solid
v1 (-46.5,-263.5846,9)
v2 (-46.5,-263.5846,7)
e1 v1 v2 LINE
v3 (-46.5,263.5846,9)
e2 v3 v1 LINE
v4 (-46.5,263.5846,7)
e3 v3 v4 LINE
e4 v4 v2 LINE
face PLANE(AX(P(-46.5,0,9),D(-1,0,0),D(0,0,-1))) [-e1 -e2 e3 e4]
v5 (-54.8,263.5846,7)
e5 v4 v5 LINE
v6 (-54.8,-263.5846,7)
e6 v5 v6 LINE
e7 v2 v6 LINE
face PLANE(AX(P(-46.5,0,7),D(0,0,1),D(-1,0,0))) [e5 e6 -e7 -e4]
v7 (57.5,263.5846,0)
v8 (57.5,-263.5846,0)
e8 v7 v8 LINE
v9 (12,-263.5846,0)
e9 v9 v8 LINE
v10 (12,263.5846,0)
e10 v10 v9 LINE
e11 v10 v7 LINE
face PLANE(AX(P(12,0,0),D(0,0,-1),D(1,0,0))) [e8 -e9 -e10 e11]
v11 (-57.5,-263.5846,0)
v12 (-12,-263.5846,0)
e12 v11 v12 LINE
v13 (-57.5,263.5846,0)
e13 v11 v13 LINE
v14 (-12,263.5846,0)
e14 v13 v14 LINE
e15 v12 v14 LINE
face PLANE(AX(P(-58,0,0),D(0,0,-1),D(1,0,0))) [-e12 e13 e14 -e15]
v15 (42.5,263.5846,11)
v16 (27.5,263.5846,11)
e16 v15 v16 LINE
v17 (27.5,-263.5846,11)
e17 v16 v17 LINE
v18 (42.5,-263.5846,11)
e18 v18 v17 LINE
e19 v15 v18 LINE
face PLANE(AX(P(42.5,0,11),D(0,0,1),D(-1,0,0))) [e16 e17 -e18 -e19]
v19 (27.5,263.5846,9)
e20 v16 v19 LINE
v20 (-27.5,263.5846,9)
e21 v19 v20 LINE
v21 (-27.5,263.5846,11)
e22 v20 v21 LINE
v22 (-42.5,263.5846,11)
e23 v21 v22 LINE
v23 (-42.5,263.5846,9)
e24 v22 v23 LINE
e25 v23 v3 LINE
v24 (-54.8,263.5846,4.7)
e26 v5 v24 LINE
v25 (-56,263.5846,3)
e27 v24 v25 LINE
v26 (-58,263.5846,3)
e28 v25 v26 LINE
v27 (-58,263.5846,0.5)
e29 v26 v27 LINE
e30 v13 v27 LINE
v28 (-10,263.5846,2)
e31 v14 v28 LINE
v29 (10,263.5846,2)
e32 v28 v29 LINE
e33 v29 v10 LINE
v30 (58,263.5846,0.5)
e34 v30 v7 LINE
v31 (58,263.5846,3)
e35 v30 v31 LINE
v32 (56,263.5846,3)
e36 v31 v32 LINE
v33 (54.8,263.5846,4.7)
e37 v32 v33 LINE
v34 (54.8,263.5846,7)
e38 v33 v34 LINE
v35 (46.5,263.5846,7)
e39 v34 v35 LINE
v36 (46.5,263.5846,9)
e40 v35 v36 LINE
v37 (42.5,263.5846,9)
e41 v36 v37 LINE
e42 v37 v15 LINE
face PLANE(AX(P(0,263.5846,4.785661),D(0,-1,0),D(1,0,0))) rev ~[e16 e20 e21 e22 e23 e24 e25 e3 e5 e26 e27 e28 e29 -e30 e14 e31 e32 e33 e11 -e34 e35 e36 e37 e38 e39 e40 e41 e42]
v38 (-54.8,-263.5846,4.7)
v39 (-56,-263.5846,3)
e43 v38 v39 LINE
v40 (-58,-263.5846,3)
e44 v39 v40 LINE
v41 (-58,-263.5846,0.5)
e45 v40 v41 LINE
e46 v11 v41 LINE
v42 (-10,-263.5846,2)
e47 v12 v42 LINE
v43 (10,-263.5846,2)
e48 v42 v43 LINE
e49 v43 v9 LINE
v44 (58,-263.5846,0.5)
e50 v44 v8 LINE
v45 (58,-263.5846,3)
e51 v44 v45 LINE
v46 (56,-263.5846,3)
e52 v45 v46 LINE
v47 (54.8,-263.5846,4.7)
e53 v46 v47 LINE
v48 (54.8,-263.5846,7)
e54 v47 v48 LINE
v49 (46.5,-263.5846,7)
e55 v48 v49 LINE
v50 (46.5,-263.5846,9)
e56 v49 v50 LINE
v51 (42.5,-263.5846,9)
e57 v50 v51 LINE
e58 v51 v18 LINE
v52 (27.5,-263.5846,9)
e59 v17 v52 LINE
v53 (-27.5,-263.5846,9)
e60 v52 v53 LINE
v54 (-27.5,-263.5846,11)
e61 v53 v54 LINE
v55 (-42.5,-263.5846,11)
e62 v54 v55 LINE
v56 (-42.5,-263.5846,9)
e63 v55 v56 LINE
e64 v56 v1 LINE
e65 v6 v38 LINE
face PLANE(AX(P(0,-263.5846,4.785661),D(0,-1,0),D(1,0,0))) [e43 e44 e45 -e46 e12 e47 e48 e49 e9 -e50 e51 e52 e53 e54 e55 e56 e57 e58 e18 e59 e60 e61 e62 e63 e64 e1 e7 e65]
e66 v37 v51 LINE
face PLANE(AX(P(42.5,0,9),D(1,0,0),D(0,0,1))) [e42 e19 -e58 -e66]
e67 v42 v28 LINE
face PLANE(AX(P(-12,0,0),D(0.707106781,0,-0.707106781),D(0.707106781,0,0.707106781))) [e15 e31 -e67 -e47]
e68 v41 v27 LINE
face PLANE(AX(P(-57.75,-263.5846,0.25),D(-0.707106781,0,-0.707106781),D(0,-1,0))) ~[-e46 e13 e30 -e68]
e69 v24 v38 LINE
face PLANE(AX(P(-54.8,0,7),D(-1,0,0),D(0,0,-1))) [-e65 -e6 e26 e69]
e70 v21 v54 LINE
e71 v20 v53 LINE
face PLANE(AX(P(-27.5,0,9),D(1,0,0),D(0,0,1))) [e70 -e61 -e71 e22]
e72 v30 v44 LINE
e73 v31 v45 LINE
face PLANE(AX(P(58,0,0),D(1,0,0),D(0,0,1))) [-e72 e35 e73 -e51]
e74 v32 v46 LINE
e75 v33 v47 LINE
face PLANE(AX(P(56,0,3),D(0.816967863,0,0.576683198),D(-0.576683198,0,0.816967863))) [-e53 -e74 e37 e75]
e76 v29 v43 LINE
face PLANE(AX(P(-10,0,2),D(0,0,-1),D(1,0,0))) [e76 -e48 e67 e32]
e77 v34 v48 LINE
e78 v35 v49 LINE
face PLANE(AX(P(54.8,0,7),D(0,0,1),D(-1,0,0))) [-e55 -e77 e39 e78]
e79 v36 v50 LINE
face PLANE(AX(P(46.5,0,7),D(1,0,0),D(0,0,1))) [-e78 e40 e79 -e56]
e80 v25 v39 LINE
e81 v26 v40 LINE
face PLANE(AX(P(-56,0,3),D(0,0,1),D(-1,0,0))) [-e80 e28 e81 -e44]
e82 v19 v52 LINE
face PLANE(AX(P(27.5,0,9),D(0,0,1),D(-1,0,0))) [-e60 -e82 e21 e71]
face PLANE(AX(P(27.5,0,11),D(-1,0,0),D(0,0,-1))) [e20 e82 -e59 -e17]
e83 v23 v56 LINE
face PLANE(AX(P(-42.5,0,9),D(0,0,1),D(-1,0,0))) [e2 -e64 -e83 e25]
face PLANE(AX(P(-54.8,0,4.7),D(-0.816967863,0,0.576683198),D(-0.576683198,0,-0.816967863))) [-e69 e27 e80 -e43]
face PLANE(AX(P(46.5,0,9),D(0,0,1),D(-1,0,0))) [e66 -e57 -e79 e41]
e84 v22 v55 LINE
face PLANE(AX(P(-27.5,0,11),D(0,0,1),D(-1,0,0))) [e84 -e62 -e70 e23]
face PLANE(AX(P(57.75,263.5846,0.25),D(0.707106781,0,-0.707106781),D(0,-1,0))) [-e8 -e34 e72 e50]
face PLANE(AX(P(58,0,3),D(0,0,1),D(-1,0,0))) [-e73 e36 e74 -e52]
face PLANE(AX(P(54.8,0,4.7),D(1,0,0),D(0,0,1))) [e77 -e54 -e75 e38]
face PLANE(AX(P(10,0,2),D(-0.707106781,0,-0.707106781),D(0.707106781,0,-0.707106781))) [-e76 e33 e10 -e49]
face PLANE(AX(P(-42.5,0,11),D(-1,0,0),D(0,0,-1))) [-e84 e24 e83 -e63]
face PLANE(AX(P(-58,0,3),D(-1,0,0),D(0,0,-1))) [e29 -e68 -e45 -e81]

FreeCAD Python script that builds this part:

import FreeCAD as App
import Part
import Sketcher
Q = App.Units.Quantity


def edges_at(feature, points):
    """Names of the edges that pass closest to the given points."""
    edges = feature.Shape.Edges
    near = lambda p: min(range(len(edges)), key=lambda i: edges[i].distToShape(Part.Vertex(*p))[0])
    return sorted({f"Edge{near(p) + 1}" for p in points})

doc = App.newDocument("Part")
body = doc.addObject("PartDesign::Body", "Body")

# Sketch on XZ plane
sketch1 = body.newObject("Sketcher::SketchObject", "Sketch")
sketch1.AttachmentSupport = (doc.getObject("XZ_Plane"), [""])
sketch1.MapMode = "FlatFace"
sketch1.addGeometry([
    Part.LineSegment(App.Vector(-10, 2, 0), App.Vector(10, 2, 0)),  # 0
    Part.LineSegment(App.Vector(10, 2, 0), App.Vector(12, 0, 0)),  # 1
    Part.LineSegment(App.Vector(12, 0, 0), App.Vector(58, 0, 0)),  # 2
    Part.LineSegment(App.Vector(58, 0, 0), App.Vector(58, 3, 0)),  # 3
    Part.LineSegment(App.Vector(58, 3, 0), App.Vector(56, 3, 0)),  # 4
    Part.LineSegment(App.Vector(56, 3, 0), App.Vector(54.8, 4.7, 0)),  # 5
    Part.LineSegment(App.Vector(54.8, 4.7, 0), App.Vector(54.8, 7, 0)),  # 6
    Part.LineSegment(App.Vector(54.8, 7, 0), App.Vector(46.5, 7, 0)),  # 7
    Part.LineSegment(App.Vector(46.5, 7, 0), App.Vector(46.5, 9, 0)),  # 8
    Part.LineSegment(App.Vector(46.5, 9, 0), App.Vector(42.5, 9, 0)),  # 9
    Part.LineSegment(App.Vector(42.5, 9, 0), App.Vector(42.5, 11, 0)),  # 10
    Part.LineSegment(App.Vector(42.5, 11, 0), App.Vector(27.5, 11, 0)),  # 11
    Part.LineSegment(App.Vector(27.5, 11, 0), App.Vector(27.5, 9, 0)),  # 12
    Part.LineSegment(App.Vector(27.5, 9, 0), App.Vector(-27.5, 9, 0)),  # 13
    Part.LineSegment(App.Vector(-27.5, 9, 0), App.Vector(-27.5, 11, 0)),  # 14
    Part.LineSegment(App.Vector(-27.5, 11, 0), App.Vector(-42.5, 11, 0)),  # 15
    Part.LineSegment(App.Vector(-42.5, 11, 0), App.Vector(-42.5, 9, 0)),  # 16
    Part.LineSegment(App.Vector(-42.5, 9, 0), App.Vector(-46.5, 9, 0)),  # 17
    Part.LineSegment(App.Vector(-46.5, 9, 0), App.Vector(-46.5, 7, 0)),  # 18
    Part.LineSegment(App.Vector(-46.5, 7, 0), App.Vector(-54.8, 7, 0)),  # 19
    Part.LineSegment(App.Vector(-54.8, 7, 0), App.Vector(-54.8, 4.7, 0)),  # 20
    Part.LineSegment(App.Vector(-54.8, 4.7, 0), App.Vector(-56, 3, 0)),  # 21
    Part.LineSegment(App.Vector(-56, 3, 0), App.Vector(-58, 3, 0)),  # 22
    Part.LineSegment(App.Vector(-58, 3, 0), App.Vector(-58, 0, 0)),  # 23
    Part.LineSegment(App.Vector(-58, 0, 0), App.Vector(-12, 0, 0)),  # 24
    Part.LineSegment(App.Vector(-12, 0, 0), App.Vector(-10, 2, 0)),  # 25
], False)
sketch1.addConstraint([
    Sketcher.Constraint("Coincident", 0, 2, 1, 1),
    Sketcher.Constraint("Coincident", 1, 2, 2, 1),
    Sketcher.Constraint("Coincident", 2, 2, 3, 1),
    Sketcher.Constraint("Coincident", 3, 2, 4, 1),
    Sketcher.Constraint("Coincident", 4, 2, 5, 1),
    Sketcher.Constraint("Coincident", 5, 2, 6, 1),
    Sketcher.Constraint("Coincident", 6, 2, 7, 1),
    Sketcher.Constraint("Coincident", 7, 2, 8, 1),
    Sketcher.Constraint("Coincident", 8, 2, 9, 1),
    Sketcher.Constraint("Coincident", 9, 2, 10, 1),
    Sketcher.Constraint("Coincident", 10, 2, 11, 1),
    Sketcher.Constraint("Coincident", 11, 2, 12, 1),
    Sketcher.Constraint("Coincident", 12, 2, 13, 1),
    Sketcher.Constraint("Coincident", 13, 2, 14, 1),
    Sketcher.Constraint("Coincident", 14, 2, 15, 1),
    Sketcher.Constraint("Coincident", 15, 2, 16, 1),
    Sketcher.Constraint("Coincident", 16, 2, 17, 1),
    Sketcher.Constraint("Coincident", 17, 2, 18, 1),
    Sketcher.Constraint("Coincident", 18, 2, 19, 1),
    Sketcher.Constraint("Coincident", 19, 2, 20, 1),
    Sketcher.Constraint("Coincident", 20, 2, 21, 1),
    Sketcher.Constraint("Coincident", 21, 2, 22, 1),
    Sketcher.Constraint("Coincident", 22, 2, 23, 1),
    Sketcher.Constraint("Coincident", 23, 2, 24, 1),
    Sketcher.Constraint("Coincident", 24, 2, 25, 1),
    Sketcher.Constraint("Coincident", 25, 2, 0, 1),
    Sketcher.Constraint("Horizontal", 0),
    Sketcher.Constraint("Horizontal", 2),
    Sketcher.Constraint("Vertical", 3),
    Sketcher.Constraint("Horizontal", 4),
    Sketcher.Constraint("Vertical", 6),
    Sketcher.Constraint("Horizontal", 7),
    Sketcher.Constraint("Vertical", 8),
    Sketcher.Constraint("Horizontal", 9),
    Sketcher.Constraint("Vertical", 10),
    Sketcher.Constraint("Horizontal", 11),
    Sketcher.Constraint("Vertical", 12),
    Sketcher.Constraint("Horizontal", 13),
    Sketcher.Constraint("Vertical", 14),
    Sketcher.Constraint("Horizontal", 15),
    Sketcher.Constraint("Vertical", 16),
    Sketcher.Constraint("Horizontal", 17),
    Sketcher.Constraint("Vertical", 18),
    Sketcher.Constraint("Horizontal", 19),
    Sketcher.Constraint("Vertical", 20),
    Sketcher.Constraint("Horizontal", 22),
    Sketcher.Constraint("Vertical", 23),
    Sketcher.Constraint("Horizontal", 24),
    Sketcher.Constraint("Symmetric", 2, 2, 23, 2, -1, 1),
    Sketcher.Constraint("Symmetric", 11, 2, 14, 2, -2),
    Sketcher.Constraint("Symmetric", 9, 2, 16, 2, -2),
    Sketcher.Constraint("Symmetric", 7, 2, 18, 2, -2),
    Sketcher.Constraint("Symmetric", 5, 2, 20, 2, -2),
    Sketcher.Constraint("Symmetric", 4, 2, 21, 2, -2),
    Sketcher.Constraint("Symmetric", 1, 2, 24, 2, -2),
    Sketcher.Constraint("Perpendicular", 1, 25),
    Sketcher.Constraint("Horizontal", 9, 2, 12, 2),
    Sketcher.Constraint("Equal", 22, 8),
    Sketcher.Constraint("Equal", 8, 10),
    Sketcher.Constraint("Equal", 1, 25),
    Sketcher.Constraint("DistanceX", 0, 1, 0, 2, Q("20 mm")),
    Sketcher.Constraint("DistanceX", 2, 1, 2, 2, Q("46 mm")),
    Sketcher.Constraint("DistanceX", 4, 2, 4, 1, Q("2 mm")),
    Sketcher.Constraint("DistanceX", 9, 2, 9, 1, Q("4 mm")),
    Sketcher.Constraint("DistanceX", 11, 2, 11, 1, Q("15 mm")),
    Sketcher.Constraint("DistanceX", 13, 2, 13, 1, Q("55 mm")),
    Sketcher.Constraint("DistanceY", 3, 1, 3, 2, Q("3 mm")),
    Sketcher.Constraint("DistanceX", 7, 2, 7, 1, Q("8.3 mm")),
    Sketcher.Constraint("DistanceY", 6, 1, 6, 2, Q("2.3 mm")),
    Sketcher.Constraint("DistanceY", -1, 1, 0, 2, Q("2 mm")),
    Sketcher.Constraint("DistanceY", -1, 1, 6, 2, Q("7 mm")),
])
pad1 = body.newObject("PartDesign::Pad", "Pad")
pad1.Profile = sketch1
pad1.Length = 527.1692
pad1.Midplane = True
doc.recompute()

chamfer = body.newObject("PartDesign::Chamfer", "Chamfer")
chamfer.Base = (pad1, edges_at(pad1, [(58, 0, 0), (-58, 0, 0)]))
chamfer.Size = 0.5

doc.recompute()
